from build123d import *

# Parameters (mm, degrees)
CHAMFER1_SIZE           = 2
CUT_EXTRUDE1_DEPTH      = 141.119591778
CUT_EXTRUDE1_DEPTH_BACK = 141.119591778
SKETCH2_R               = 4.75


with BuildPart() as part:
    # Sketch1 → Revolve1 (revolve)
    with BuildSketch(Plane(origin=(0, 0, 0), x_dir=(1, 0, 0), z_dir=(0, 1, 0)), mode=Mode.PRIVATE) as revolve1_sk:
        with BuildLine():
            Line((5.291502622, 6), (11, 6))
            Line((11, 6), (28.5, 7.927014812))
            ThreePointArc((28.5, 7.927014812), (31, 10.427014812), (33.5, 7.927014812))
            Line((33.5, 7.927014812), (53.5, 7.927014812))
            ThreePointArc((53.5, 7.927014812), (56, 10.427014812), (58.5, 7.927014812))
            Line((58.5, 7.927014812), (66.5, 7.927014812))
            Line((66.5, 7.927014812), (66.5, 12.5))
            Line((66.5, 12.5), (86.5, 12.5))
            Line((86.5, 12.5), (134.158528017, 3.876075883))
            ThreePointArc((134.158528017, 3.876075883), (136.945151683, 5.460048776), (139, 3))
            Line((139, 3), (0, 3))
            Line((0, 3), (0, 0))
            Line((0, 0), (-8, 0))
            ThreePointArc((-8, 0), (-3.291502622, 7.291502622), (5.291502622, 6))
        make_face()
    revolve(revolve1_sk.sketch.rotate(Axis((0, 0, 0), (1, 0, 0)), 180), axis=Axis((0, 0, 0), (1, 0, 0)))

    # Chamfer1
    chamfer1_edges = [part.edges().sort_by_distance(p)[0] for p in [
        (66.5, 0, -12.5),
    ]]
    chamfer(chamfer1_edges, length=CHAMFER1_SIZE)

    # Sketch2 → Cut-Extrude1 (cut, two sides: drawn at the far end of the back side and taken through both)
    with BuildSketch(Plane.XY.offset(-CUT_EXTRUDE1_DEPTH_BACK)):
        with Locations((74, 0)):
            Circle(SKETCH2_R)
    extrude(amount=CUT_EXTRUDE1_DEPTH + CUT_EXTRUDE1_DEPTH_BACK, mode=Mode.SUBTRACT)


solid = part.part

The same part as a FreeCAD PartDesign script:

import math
import FreeCAD as App
import Part
import Sketcher
from FreeCAD import Vector


def edges_at(feature, points):
    """Names of the edges that pass closest to the given points."""
    edges = feature.Shape.Edges
    near = lambda p: min(range(len(edges)), key=lambda i: edges[i].distToShape(Part.Vertex(*p))[0])
    return sorted({f"Edge{near(p) + 1}" for p in points})

doc = App.newDocument("Part")
params = doc.addObject("Spreadsheet::Sheet", "Params")
for row, (alias, value) in enumerate([
    ("sketch1_radius", "8 mm"),
    ("sketch1_radius2", "2.5 mm"),
    ("sketch1_width", "139 mm"),
    ("sketch1_width2", "20 mm"),
    ("sketch1_height", "3 mm"),
    ("revolution_angle", "360 deg"),
    ("chamfer_size", "2 mm"),
    ("sketch2_diameter", "9.5 mm"),
], start=1):
    params.set(f"A{row}", alias)
    params.set(f"B{row}", "=" + value)
    params.setAlias(f"B{row}", alias)

body = doc.addObject("PartDesign::Body", "Body")

sketch1 = doc.addObject("Sketcher::SketchObject", "Sketch")
body.addObject(sketch1)
sketch1.AttachmentSupport = (doc.XZ_Plane, [""])
sketch1.MapMode = "FlatFace"
sketch1.addGeometry([
    Part.LineSegment(Vector(11, -6, 0), Vector(5.3, -6, 0)),
    Part.ArcOfCircle(Part.Circle(Vector(0, 0, 0), Vector(0, 0, 1), 8), math.radians(180), math.radians(311)),
    Part.LineSegment(Vector(-8, 0, 0), Vector(0, 0, 0)),
    Part.LineSegment(Vector(0, 0, 0), Vector(0, -3, 0)),
    Part.LineSegment(Vector(0, -3, 0), Vector(139, -3, 0)),
    Part.ArcOfCircle(Part.Circle(Vector(136.5, -3, 0), Vector(0, 0, 1), 2.5), math.radians(-159), math.radians(0)),
    Part.LineSegment(Vector(134.2, -3.9, 0), Vector(86.5, -12.5, 0)),
    Part.LineSegment(Vector(86.5, -12.5, 0), Vector(66.5, -12.5, 0)),
    Part.LineSegment(Vector(66.5, -12.5, 0), Vector(66.5, -7.9, 0)),
    Part.LineSegment(Vector(66.5, -7.9, 0), Vector(58.5, -7.9, 0)),
    Part.ArcOfCircle(Part.Circle(Vector(56, -7.9, 0), Vector(0, 0, 1), 2.5), math.radians(180), math.radians(360)),
    Part.LineSegment(Vector(53.5, -7.9, 0), Vector(33.5, -7.9, 0)),
    Part.ArcOfCircle(Part.Circle(Vector(31, -7.9, 0), Vector(0, 0, 1), 2.5), math.radians(180), math.radians(360)),
    Part.LineSegment(Vector(28.5, -7.9, 0), Vector(11, -6, 0)),
], False)
sketch1.addConstraint([
    Sketcher.Constraint("Coincident", 0, 2, 1, 2),
    Sketcher.Constraint("Coincident", 1, 1, 2, 1),
    Sketcher.Constraint("Coincident", 2, 2, 3, 1),
    Sketcher.Constraint("Coincident", 3, 2, 4, 1),
    Sketcher.Constraint("Coincident", 4, 2, 5, 2),
    Sketcher.Constraint("Coincident", 5, 1, 6, 1),
    Sketcher.Constraint("Coincident", 6, 2, 7, 1),
    Sketcher.Constraint("Coincident", 7, 2, 8, 1),
    Sketcher.Constraint("Coincident", 8, 2, 9, 1),
    Sketcher.Constraint("Coincident", 9, 2, 10, 2),
    Sketcher.Constraint("Coincident", 10, 1, 11, 1),
    Sketcher.Constraint("Coincident", 11, 2, 12, 2),
    Sketcher.Constraint("Coincident", 12, 1, 13, 1),
    Sketcher.Constraint("Coincident", 13, 2, 0, 1),
    Sketcher.Constraint("Horizontal", 0),
    Sketcher.Constraint("Horizontal", 2),
    Sketcher.Constraint("Vertical", 3),
    Sketcher.Constraint("Horizontal", 4),
    Sketcher.Constraint("Horizontal", 7),
    Sketcher.Constraint("Vertical", 8),
    Sketcher.Constraint("Horizontal", 9),
    Sketcher.Constraint("Horizontal", 11),
    Sketcher.Constraint("Coincident", 1, 3, -1, 1),
    Sketcher.Constraint("Coincident", 2, 2, -1, 1),
    Sketcher.Constraint("Equal", 5, 10),
    Sketcher.Constraint("Equal", 10, 12),
    Sketcher.Constraint("Horizontal", 10, 3, 12, 3),
    Sketcher.Constraint("Horizontal", 5, 3, 3, 2),
    Sketcher.Constraint("Horizontal", 12, 3, 8, 2),
    Sketcher.Constraint("Horizontal", 9, 2, 10, 1),
    Sketcher.Constraint("Horizontal", 11, 2, 12, 1),
    Sketcher.Constraint("Equal", 2, 9),
    Sketcher.Constraint("Equal", 7, 11),
    Sketcher.Constraint("Radius", 1, 8.0),
    Sketcher.Constraint("Radius", 5, 2.5),
    Sketcher.Constraint("DistanceX", 4, 1, 4, 2, 139.0),
    Sketcher.Constraint("DistanceX", 7, 2, 7, 1, 20.0),
    Sketcher.Constraint("DistanceY", 3, 2, 3, 1, 3.0),
    Sketcher.Constraint("DistanceX", -1, 1, 10, 3, 56.0),
    Sketcher.Constraint("DistanceY", 0, 2, -1, 1, 6.0),
    Sketcher.Constraint("DistanceX", -1, 1, 13, 2, 11.0),
    Sketcher.Constraint("DistanceY", 6, 2, -1, 1, 12.5),
    Sketcher.Constraint("DistanceY", 8, 1, 8, 2, 4.572985),
    Sketcher.Constraint("DistanceX", -1, 1, 5, 1, 134.158528),
])
sketch1.setExpression("Constraints[33]", "Params.sketch1_radius")
sketch1.setExpression("Constraints[34]", "Params.sketch1_radius2")
sketch1.setExpression("Constraints[35]", "Params.sketch1_width")
sketch1.setExpression("Constraints[36]", "Params.sketch1_width2")
sketch1.setExpression("Constraints[37]", "Params.sketch1_height")
revolution = doc.addObject("PartDesign::Revolution", "Revolution")
body.addObject(revolution)
revolution.Profile = sketch1
revolution.ReferenceAxis = (sketch1, ["H_Axis"])
revolution.setExpression("Angle", "Params.revolution_angle")
doc.recompute()

chamfer = doc.addObject("PartDesign::Chamfer", "Chamfer")
body.addObject(chamfer)
chamfer.Base = (revolution, edges_at(revolution, [(66.5, 0, -12.5)]))
chamfer.setExpression("Size", "Params.chamfer_size")

sketch2 = doc.addObject("Sketcher::SketchObject", "Sketch001")
body.addObject(sketch2)
sketch2.AttachmentSupport = (doc.XY_Plane, [""])
sketch2.MapMode = "FlatFace"
sketch2.addGeometry(Part.Circle(Vector(74, 0, 0), Vector(0, 0, 1), 4.8), False)
sketch2.addConstraint([
    Sketcher.Constraint("PointOnObject", 0, 3, -1),
    Sketcher.Constraint("Diameter", 0, 9.5),
    Sketcher.Constraint("DistanceX", -1, 1, 0, 3, 74.0),
])
sketch2.setExpression("Constraints[1]", "Params.sketch2_diameter")
pocket1 = doc.addObject("PartDesign::Pocket", "Pocket")
body.addObject(pocket1)
pocket1.Profile = sketch2
pocket1.Type = "ThroughAll"
pocket1.Midplane = True

doc.recompute()
